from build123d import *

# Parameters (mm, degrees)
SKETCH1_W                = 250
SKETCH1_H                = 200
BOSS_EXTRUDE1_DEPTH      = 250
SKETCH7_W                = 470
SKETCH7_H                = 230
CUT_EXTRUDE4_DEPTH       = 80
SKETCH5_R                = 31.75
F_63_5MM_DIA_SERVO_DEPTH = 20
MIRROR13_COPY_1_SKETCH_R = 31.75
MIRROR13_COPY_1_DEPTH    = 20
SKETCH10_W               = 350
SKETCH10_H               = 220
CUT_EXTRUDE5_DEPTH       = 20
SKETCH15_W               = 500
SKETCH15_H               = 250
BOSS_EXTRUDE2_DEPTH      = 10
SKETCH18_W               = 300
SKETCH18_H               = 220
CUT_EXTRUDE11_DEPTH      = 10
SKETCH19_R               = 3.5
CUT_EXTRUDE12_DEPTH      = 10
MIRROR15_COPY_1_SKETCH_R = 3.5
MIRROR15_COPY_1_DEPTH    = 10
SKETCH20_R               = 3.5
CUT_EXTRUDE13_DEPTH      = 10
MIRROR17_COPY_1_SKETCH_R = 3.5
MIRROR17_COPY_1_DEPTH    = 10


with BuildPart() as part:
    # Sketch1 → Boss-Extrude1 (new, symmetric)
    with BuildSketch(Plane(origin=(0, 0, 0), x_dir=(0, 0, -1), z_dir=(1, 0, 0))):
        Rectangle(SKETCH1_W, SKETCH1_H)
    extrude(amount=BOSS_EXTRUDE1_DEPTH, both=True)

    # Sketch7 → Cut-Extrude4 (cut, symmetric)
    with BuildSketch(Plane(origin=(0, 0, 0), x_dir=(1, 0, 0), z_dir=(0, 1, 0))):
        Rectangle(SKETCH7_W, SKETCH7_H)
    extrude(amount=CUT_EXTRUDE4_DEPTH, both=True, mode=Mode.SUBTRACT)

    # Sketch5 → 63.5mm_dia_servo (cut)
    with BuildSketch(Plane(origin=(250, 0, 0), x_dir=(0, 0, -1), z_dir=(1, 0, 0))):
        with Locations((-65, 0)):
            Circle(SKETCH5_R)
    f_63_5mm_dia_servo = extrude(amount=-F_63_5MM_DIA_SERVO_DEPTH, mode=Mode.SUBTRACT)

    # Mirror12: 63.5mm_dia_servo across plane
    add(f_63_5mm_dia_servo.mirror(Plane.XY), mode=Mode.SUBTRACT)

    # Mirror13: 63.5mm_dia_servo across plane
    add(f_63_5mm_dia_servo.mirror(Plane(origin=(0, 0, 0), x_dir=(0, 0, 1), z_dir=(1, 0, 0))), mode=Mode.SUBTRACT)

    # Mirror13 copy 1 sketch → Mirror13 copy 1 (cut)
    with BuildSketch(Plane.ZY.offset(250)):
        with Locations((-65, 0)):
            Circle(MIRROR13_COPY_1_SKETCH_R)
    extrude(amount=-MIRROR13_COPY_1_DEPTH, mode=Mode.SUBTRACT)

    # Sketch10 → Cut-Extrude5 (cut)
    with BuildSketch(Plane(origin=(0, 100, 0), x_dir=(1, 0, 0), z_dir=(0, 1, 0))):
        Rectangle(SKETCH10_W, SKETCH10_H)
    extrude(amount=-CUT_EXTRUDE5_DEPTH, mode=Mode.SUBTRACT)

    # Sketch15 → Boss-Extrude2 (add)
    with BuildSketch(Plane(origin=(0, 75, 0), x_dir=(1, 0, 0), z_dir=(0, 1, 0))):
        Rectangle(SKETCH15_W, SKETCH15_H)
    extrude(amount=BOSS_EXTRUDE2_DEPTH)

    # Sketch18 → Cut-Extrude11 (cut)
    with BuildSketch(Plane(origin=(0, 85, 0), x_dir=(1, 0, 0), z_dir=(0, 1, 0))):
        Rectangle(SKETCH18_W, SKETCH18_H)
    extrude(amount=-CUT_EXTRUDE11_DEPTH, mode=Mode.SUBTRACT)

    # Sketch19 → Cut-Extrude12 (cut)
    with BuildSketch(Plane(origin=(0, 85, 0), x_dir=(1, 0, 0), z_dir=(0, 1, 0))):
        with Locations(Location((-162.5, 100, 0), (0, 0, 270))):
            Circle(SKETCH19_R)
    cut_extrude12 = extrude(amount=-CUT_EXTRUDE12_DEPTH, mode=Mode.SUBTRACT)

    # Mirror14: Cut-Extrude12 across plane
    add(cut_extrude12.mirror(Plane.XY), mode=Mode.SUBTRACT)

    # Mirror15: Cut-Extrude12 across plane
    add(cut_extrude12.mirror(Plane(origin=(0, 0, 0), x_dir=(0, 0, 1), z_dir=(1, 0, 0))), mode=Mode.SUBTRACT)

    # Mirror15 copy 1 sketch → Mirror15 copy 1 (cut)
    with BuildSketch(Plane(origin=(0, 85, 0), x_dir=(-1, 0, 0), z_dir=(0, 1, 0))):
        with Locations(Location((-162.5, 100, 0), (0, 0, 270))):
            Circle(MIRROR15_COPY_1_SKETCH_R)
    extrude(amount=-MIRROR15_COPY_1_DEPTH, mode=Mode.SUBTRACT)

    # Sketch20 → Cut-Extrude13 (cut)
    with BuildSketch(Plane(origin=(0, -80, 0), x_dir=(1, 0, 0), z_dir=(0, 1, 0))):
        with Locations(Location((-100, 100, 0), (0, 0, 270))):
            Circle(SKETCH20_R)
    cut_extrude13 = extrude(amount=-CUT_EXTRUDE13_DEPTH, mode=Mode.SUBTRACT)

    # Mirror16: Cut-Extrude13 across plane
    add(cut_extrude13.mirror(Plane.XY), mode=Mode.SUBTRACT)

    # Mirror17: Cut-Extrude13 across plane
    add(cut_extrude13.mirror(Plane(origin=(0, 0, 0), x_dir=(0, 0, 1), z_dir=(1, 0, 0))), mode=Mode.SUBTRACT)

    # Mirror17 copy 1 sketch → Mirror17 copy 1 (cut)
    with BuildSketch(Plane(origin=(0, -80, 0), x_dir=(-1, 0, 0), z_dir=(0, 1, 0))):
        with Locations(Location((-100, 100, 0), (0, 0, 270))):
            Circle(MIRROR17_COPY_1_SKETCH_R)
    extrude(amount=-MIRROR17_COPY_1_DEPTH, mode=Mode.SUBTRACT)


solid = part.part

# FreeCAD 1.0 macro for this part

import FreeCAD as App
import Part
import Sketcher
from FreeCAD import Vector


def add_polygon(sketch, points):
    """Adds a closed chain of lines whose ends are joined by coincident constraints."""
    first, n = sketch.GeometryCount, len(points)
    for a, b in zip(points, points[1:] + points[:1]):
        sketch.addGeometry(Part.LineSegment(App.Vector(*a, 0), App.Vector(*b, 0)), False)
    for i in range(n):
        sketch.addConstraint(Sketcher.Constraint("Coincident", first + i, 2, first + (i + 1) % n, 1))

doc = App.newDocument("Part")
body = doc.addObject("PartDesign::Body", "Body")

sketch1 = doc.addObject("Sketcher::SketchObject", "Sketch")
body.addObject(sketch1)
sketch1.AttachmentSupport = (doc.YZ_Plane, [""])
sketch1.MapMode = "FlatFace"
add_polygon(sketch1, [(100, 125), (-100, 125), (-100, -125), (100, -125)])
sketch1.addConstraint([
    Sketcher.Constraint("Horizontal", 0),
    Sketcher.Constraint("Vertical", 1),
    Sketcher.Constraint("Horizontal", 2),
    Sketcher.Constraint("Vertical", 3),
    Sketcher.Constraint("Symmetric", 0, 2, 2, 2, -1, 1),
    Sketcher.Constraint("DistanceX", 0, 2, 0, 1, 200.0),
    Sketcher.Constraint("DistanceY", 1, 2, 1, 1, 250.0),
])
pad1 = doc.addObject("PartDesign::Pad", "Pad")
body.addObject(pad1)
pad1.Profile = sketch1
pad1.Length = 500
pad1.Midplane = True

sketch2 = doc.addObject("Sketcher::SketchObject", "Sketch001")
body.addObject(sketch2)
sketch2.AttachmentSupport = (doc.XZ_Plane, [""])
sketch2.MapMode = "FlatFace"
add_polygon(sketch2, [(-235, -115), (-235, 115), (235, 115), (235, -115)])
sketch2.addConstraint([
    Sketcher.Constraint("Vertical", 0),
    Sketcher.Constraint("Horizontal", 1),
    Sketcher.Constraint("Vertical", 2),
    Sketcher.Constraint("Horizontal", 3),
    Sketcher.Constraint("Symmetric", 0, 2, 2, 2, -1, 1),
    Sketcher.Constraint("DistanceX", 1, 1, 1, 2, 470.0),
    Sketcher.Constraint("DistanceY", 0, 1, 0, 2, 230.0),
])
pocket1 = doc.addObject("PartDesign::Pocket", "Pocket")
body.addObject(pocket1)
pocket1.Profile = sketch2
pocket1.Length = 160
pocket1.Midplane = True

sketch3 = doc.addObject("Sketcher::SketchObject", "Sketch002")
body.addObject(sketch3)
sketch3.AttachmentSupport = (doc.YZ_Plane, [""])
sketch3.MapMode = "FlatFace"
sketch3.AttachmentOffset = App.Placement(Vector(0, 0, 250), App.Rotation())
sketch3.addGeometry(Part.Circle(Vector(0, 65, 0), Vector(0, 0, 1), 32), False)
sketch3.addConstraint([
    Sketcher.Constraint("PointOnObject", 0, 3, -2),
    Sketcher.Constraint("Diameter", 0, 63.5),
    Sketcher.Constraint("DistanceY", -1, 1, 0, 3, 65.0),
])
pocket2 = doc.addObject("PartDesign::Pocket", "Pocket001")
body.addObject(pocket2)
pocket2.Profile = sketch3
pocket2.Length = 20
doc.recompute()

mirrored = doc.addObject("PartDesign::Mirrored", "Mirrored")
body.addObject(mirrored)
mirrored.Originals = [pocket2]
mirrored.MirrorPlane = (doc.XY_Plane, [""])
body.Tip = mirrored
doc.recompute()

mirrored2 = doc.addObject("PartDesign::Mirrored", "Mirrored001")
body.addObject(mirrored2)
mirrored2.Originals = [pocket2]
mirrored2.MirrorPlane = (doc.YZ_Plane, [""])
body.Tip = mirrored2

sketch4 = doc.addObject("Sketcher::SketchObject", "Sketch003")
body.addObject(sketch4)
sketch4.AttachmentSupport = (doc.YZ_Plane, [""])
sketch4.MapMode = "FlatFace"
sketch4.AttachmentOffset = App.Placement(Vector(0, 0, -250), App.Rotation())
sketch4.addGeometry(Part.Circle(Vector(0, -65, 0), Vector(0, 0, 1), 32), False)
sketch4.addConstraint([
    Sketcher.Constraint("PointOnObject", 0, 3, -2),
    Sketcher.Constraint("Diameter", 0, 63.5),
    Sketcher.Constraint("DistanceY", 0, 3, -1, 1, 65.0),
])
pocket3 = doc.addObject("PartDesign::Pocket", "Pocket002")
body.addObject(pocket3)
pocket3.Profile = sketch4
pocket3.Length = 20
pocket3.Reversed = True

sketch5 = doc.addObject("Sketcher::SketchObject", "Sketch004")
body.addObject(sketch5)
sketch5.AttachmentSupport = (doc.XZ_Plane, [""])
sketch5.MapMode = "FlatFace"
sketch5.AttachmentOffset = App.Placement(Vector(0, 0, -100), App.Rotation())
add_polygon(sketch5, [(-175, -110), (-175, 110), (175, 110), (175, -110)])
sketch5.addConstraint([
    Sketcher.Constraint("Vertical", 0),
    Sketcher.Constraint("Horizontal", 1),
    Sketcher.Constraint("Vertical", 2),
    Sketcher.Constraint("Horizontal", 3),
    Sketcher.Constraint("Symmetric", 0, 2, 2, 2, -1, 1),
    Sketcher.Constraint("DistanceX", 1, 1, 1, 2, 350.0),
    Sketcher.Constraint("DistanceY", 0, 1, 0, 2, 220.0),
])
pocket4 = doc.addObject("PartDesign::Pocket", "Pocket003")
body.addObject(pocket4)
pocket4.Profile = sketch5
pocket4.Length = 20
pocket4.Reversed = True

sketch6 = doc.addObject("Sketcher::SketchObject", "Sketch005")
body.addObject(sketch6)
sketch6.AttachmentSupport = (doc.XZ_Plane, [""])
sketch6.MapMode = "FlatFace"
sketch6.AttachmentOffset = App.Placement(Vector(0, 0, -75), App.Rotation())
add_polygon(sketch6, [(-250, -125), (-250, 125), (250, 125), (250, -125)])
sketch6.addConstraint([
    Sketcher.Constraint("Vertical", 0),
    Sketcher.Constraint("Horizontal", 1),
    Sketcher.Constraint("Vertical", 2),
    Sketcher.Constraint("Horizontal", 3),
    Sketcher.Constraint("Symmetric", 0, 2, 2, 2, -1, 1),
    Sketcher.Constraint("DistanceX", 1, 1, 1, 2, 500.0),
    Sketcher.Constraint("DistanceY", 0, 1, 0, 2, 250.0),
])
pad2 = doc.addObject("PartDesign::Pad", "Pad001")
body.addObject(pad2)
pad2.Profile = sketch6
pad2.Length = 10
pad2.Reversed = True

sketch7 = doc.addObject("Sketcher::SketchObject", "Sketch006")
body.addObject(sketch7)
sketch7.AttachmentSupport = (doc.XZ_Plane, [""])
sketch7.MapMode = "FlatFace"
sketch7.AttachmentOffset = App.Placement(Vector(0, 0, -85), App.Rotation())
add_polygon(sketch7, [(-150, -110), (-150, 110), (150, 110), (150, -110)])
sketch7.addConstraint([
    Sketcher.Constraint("Vertical", 0),
    Sketcher.Constraint("Horizontal", 1),
    Sketcher.Constraint("Vertical", 2),
    Sketcher.Constraint("Horizontal", 3),
    Sketcher.Constraint("Symmetric", 0, 2, 2, 2, -1, 1),
    Sketcher.Constraint("DistanceX", 1, 1, 1, 2, 300.0),
    Sketcher.Constraint("DistanceY", 0, 1, 0, 2, 220.0),
])
pocket5 = doc.addObject("PartDesign::Pocket", "Pocket004")
body.addObject(pocket5)
pocket5.Profile = sketch7
pocket5.Length = 10
pocket5.Reversed = True

sketch8 = doc.addObject("Sketcher::SketchObject", "Sketch007")
body.addObject(sketch8)
sketch8.AttachmentSupport = (doc.XZ_Plane, [""])
sketch8.MapMode = "FlatFace"
sketch8.AttachmentOffset = App.Placement(Vector(0, 0, -85), App.Rotation())
sketch8.addGeometry(Part.Circle(Vector(-162.5, -100, 0), Vector(0, 0, 1), 3.5), False)
sketch8.addConstraint([
    Sketcher.Constraint("Diameter", 0, 7.0),
    Sketcher.Constraint("DistanceY", 0, 3, -1, 1, 100.0),
    Sketcher.Constraint("DistanceX", 0, 3, -1, 1, 162.5),
])
pocket6 = doc.addObject("PartDesign::Pocket", "Pocket005")
body.addObject(pocket6)
pocket6.Profile = sketch8
pocket6.Length = 10
pocket6.Reversed = True
doc.recompute()

mirrored3 = doc.addObject("PartDesign::Mirrored", "Mirrored002")
body.addObject(mirrored3)
mirrored3.Originals = [pocket6]
mirrored3.MirrorPlane = (doc.XY_Plane, [""])
body.Tip = mirrored3
doc.recompute()

mirrored4 = doc.addObject("PartDesign::Mirrored", "Mirrored003")
body.addObject(mirrored4)
mirrored4.Originals = [pocket6]
mirrored4.MirrorPlane = (doc.YZ_Plane, [""])
body.Tip = mirrored4

sketch9 = doc.addObject("Sketcher::SketchObject", "Sketch008")
body.addObject(sketch9)
sketch9.AttachmentSupport = (doc.XZ_Plane, [""])
sketch9.MapMode = "FlatFace"
sketch9.AttachmentOffset = App.Placement(Vector(0, 0, -85), App.Rotation())
sketch9.addGeometry(Part.Circle(Vector(162.5, 100, 0), Vector(0, 0, 1), 3.5), False)
sketch9.addConstraint([
    Sketcher.Constraint("Diameter", 0, 7.0),
    Sketcher.Constraint("DistanceY", -1, 1, 0, 3, 100.0),
    Sketcher.Constraint("DistanceX", -1, 1, 0, 3, 162.5),
])
pocket7 = doc.addObject("PartDesign::Pocket", "Pocket006")
body.addObject(pocket7)
pocket7.Profile = sketch9
pocket7.Length = 10
pocket7.Reversed = True

sketch10 = doc.addObject("Sketcher::SketchObject", "Sketch009")
body.addObject(sketch10)
sketch10.AttachmentSupport = (doc.XZ_Plane, [""])
sketch10.MapMode = "FlatFace"
sketch10.AttachmentOffset = App.Placement(Vector(0, 0, 80), App.Rotation())
sketch10.addGeometry(Part.Circle(Vector(-100, -100, 0), Vector(0, 0, 1), 3.5), False)
sketch10.addConstraint([
    Sketcher.Constraint("Diameter", 0, 7.0),
    Sketcher.Constraint("DistanceX", 0, 3, -1, 1, 100.0),
    Sketcher.Constraint("DistanceY", 0, 3, -1, 1, 100.0),
])
pocket8 = doc.addObject("PartDesign::Pocket", "Pocket007")
body.addObject(pocket8)
pocket8.Profile = sketch10
pocket8.Length = 10
pocket8.Reversed = True
doc.recompute()

mirrored5 = doc.addObject("PartDesign::Mirrored", "Mirrored004")
body.addObject(mirrored5)
mirrored5.Originals = [pocket8]
mirrored5.MirrorPlane = (doc.XY_Plane, [""])
body.Tip = mirrored5
doc.recompute()

mirrored6 = doc.addObject("PartDesign::Mirrored", "Mirrored005")
body.addObject(mirrored6)
mirrored6.Originals = [pocket8]
mirrored6.MirrorPlane = (doc.YZ_Plane, [""])
body.Tip = mirrored6

sketch11 = doc.addObject("Sketcher::SketchObject", "Sketch010")
body.addObject(sketch11)
sketch11.AttachmentSupport = (doc.XZ_Plane, [""])
sketch11.MapMode = "FlatFace"
sketch11.AttachmentOffset = App.Placement(Vector(0, 0, 80), App.Rotation())
sketch11.addGeometry(Part.Circle(Vector(100, 100, 0), Vector(0, 0, 1), 3.5), False)
sketch11.addConstraint([
    Sketcher.Constraint("Diameter", 0, 7.0),
    Sketcher.Constraint("DistanceX", -1, 1, 0, 3, 100.0),
    Sketcher.Constraint("DistanceY", -1, 1, 0, 3, 100.0),
])
pocket9 = doc.addObject("PartDesign::Pocket", "Pocket008")
body.addObject(pocket9)
pocket9.Profile = sketch11
pocket9.Length = 10
pocket9.Reversed = True

doc.recompute()
